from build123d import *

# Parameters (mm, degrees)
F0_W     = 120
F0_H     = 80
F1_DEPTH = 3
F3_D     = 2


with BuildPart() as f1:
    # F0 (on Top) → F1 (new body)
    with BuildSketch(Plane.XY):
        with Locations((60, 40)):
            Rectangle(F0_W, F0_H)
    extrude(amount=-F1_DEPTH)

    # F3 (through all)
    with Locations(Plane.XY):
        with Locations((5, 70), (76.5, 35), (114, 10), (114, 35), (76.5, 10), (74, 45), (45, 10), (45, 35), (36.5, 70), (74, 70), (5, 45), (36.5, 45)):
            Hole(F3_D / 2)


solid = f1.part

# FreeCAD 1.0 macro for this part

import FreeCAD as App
import Part
import Sketcher
from FreeCAD import Vector
Q = App.Units.Quantity


def add_polygon(sketch, points):
    """Adds a closed chain of lines whose ends are joined by coincident constraints."""
    first, n = sketch.GeometryCount, len(points)
    for a, b in zip(points, points[1:] + points[:1]):
        sketch.addGeometry(Part.LineSegment(App.Vector(*a, 0), App.Vector(*b, 0)), False)
    for i in range(n):
        sketch.addConstraint(Sketcher.Constraint("Coincident", first + i, 2, first + (i + 1) % n, 1))

doc = App.newDocument("Part")
params = doc.addObject("Spreadsheet::Sheet", "Params")
for row, (alias, value) in enumerate([
    ("sketch1_width", "120 mm"),
    ("sketch1_height", "80 mm"),
    ("pad1_length", "3 mm"),
    ("sketch2_diameter", "2 mm"),
    ("hole_diameter", "2 mm"),
], start=1):
    params.set(f"A{row}", alias)
    params.set(f"B{row}", "=" + value)
    params.setAlias(f"B{row}", alias)

body = doc.addObject("PartDesign::Body", "Body")

# Sketch on XY plane
sketch1 = body.newObject("Sketcher::SketchObject", "Sketch")
sketch1.AttachmentSupport = (doc.getObject("XY_Plane"), [""])
sketch1.MapMode = "FlatFace"
add_polygon(sketch1, [(0, 80), (0, 0), (120, 0), (120, 80)])  # lines 0-3
sketch1.addConstraint([
    Sketcher.Constraint("Vertical", 0),
    Sketcher.Constraint("Horizontal", 1),
    Sketcher.Constraint("Vertical", 2),
    Sketcher.Constraint("Horizontal", 3),
    Sketcher.Constraint("Coincident", 0, 2, -1, 1),
    Sketcher.Constraint("DistanceX", 1, 1, 1, 2, Q("120 mm")),
    Sketcher.Constraint("DistanceY", 0, 2, 0, 1, Q("80 mm")),
])
sketch1.setExpression("Constraints[9]", "Params.sketch1_width")
sketch1.setExpression("Constraints[10]", "Params.sketch1_height")
pad1 = body.newObject("PartDesign::Pad", "Pad")
pad1.Profile = sketch1
pad1.setExpression("Length", "Params.pad1_length")
pad1.Reversed = True

# Sketch on XY plane
sketch2 = body.newObject("Sketcher::SketchObject", "Sketch001")
sketch2.AttachmentSupport = (doc.getObject("XY_Plane"), [""])
sketch2.MapMode = "FlatFace"
sketch2.addGeometry([
    Part.Circle(Vector(5, 70, 0), Vector(0, 0, 1), 1),  # 0
    Part.Circle(Vector(76.5, 35, 0), Vector(0, 0, 1), 1),  # 1
    Part.Circle(Vector(114, 10, 0), Vector(0, 0, 1), 1),  # 2
    Part.Circle(Vector(114, 35, 0), Vector(0, 0, 1), 1),  # 3
    Part.Circle(Vector(76.5, 10, 0), Vector(0, 0, 1), 1),  # 4
    Part.Circle(Vector(74, 45, 0), Vector(0, 0, 1), 1),  # 5
    Part.Circle(Vector(45, 10, 0), Vector(0, 0, 1), 1),  # 6
    Part.Circle(Vector(45, 35, 0), Vector(0, 0, 1), 1),  # 7
    Part.Circle(Vector(36.5, 70, 0), Vector(0, 0, 1), 1),  # 8
    Part.Circle(Vector(74, 70, 0), Vector(0, 0, 1), 1),  # 9
    Part.Circle(Vector(5, 45, 0), Vector(0, 0, 1), 1),  # 10
    Part.Circle(Vector(36.5, 45, 0), Vector(0, 0, 1), 1),  # 11
], False)
sketch2.addConstraint([
    Sketcher.Constraint("Equal", 0, 1),
    Sketcher.Constraint("Equal", 1, 2),
    Sketcher.Constraint("Equal", 2, 3),
    Sketcher.Constraint("Equal", 3, 4),
    Sketcher.Constraint("Equal", 4, 5),
    Sketcher.Constraint("Equal", 5, 6),
    Sketcher.Constraint("Equal", 6, 7),
    Sketcher.Constraint("Equal", 7, 8),
    Sketcher.Constraint("Equal", 8, 9),
    Sketcher.Constraint("Equal", 9, 10),
    Sketcher.Constraint("Equal", 10, 11),
    Sketcher.Constraint("Horizontal", 1, 3, 3, 3),
    Sketcher.Constraint("Horizontal", 2, 3, 4, 3),
    Sketcher.Constraint("Horizontal", 4, 3, 6, 3),
    Sketcher.Constraint("Horizontal", 3, 3, 7, 3),
    Sketcher.Constraint("Horizontal", 0, 3, 8, 3),
    Sketcher.Constraint("Horizontal", 8, 3, 9, 3),
    Sketcher.Constraint("Horizontal", 5, 3, 10, 3),
    Sketcher.Constraint("Horizontal", 10, 3, 11, 3),
    Sketcher.Constraint("Vertical", 2, 3, 3, 3),
    Sketcher.Constraint("Vertical", 1, 3, 4, 3),
    Sketcher.Constraint("Vertical", 6, 3, 7, 3),
    Sketcher.Constraint("Vertical", 5, 3, 9, 3),
    Sketcher.Constraint("Vertical", 0, 3, 10, 3),
    Sketcher.Constraint("Vertical", 8, 3, 11, 3),
    Sketcher.Constraint("Diameter", 0, Q("2 mm")),
    Sketcher.Constraint("DistanceX", -1, 1, 0, 3, Q("5 mm")),
    Sketcher.Constraint("DistanceY", -1, 1, 0, 3, Q("70 mm")),
    Sketcher.Constraint("DistanceY", -1, 1, 1, 3, Q("35 mm")),
    Sketcher.Constraint("DistanceX", -1, 1, 2, 3, Q("114 mm")),
    Sketcher.Constraint("DistanceY", -1, 1, 2, 3, Q("10 mm")),
    Sketcher.Constraint("DistanceX", -1, 1, 5, 3, Q("74 mm")),
    Sketcher.Constraint("DistanceY", -1, 1, 5, 3, Q("45 mm")),
    Sketcher.Constraint("DistanceX", -1, 1, 6, 3, Q("45 mm")),
    Sketcher.Constraint("DistanceX", 8, 3, 1, 3, Q("40 mm")),
    Sketcher.Constraint("DistanceX", -1, 1, 1, 3, Q("76.5 mm")),
])
sketch2.setExpression("Constraints[25]", "Params.sketch2_diameter")
doc.recompute()
hole = body.newObject("PartDesign::Hole", "Hole")
hole.Profile = sketch2
hole.ThreadType = "None"
hole.setExpression("Diameter", "Params.hole_diameter")
hole.DepthType = "ThroughAll"

doc.recompute()
